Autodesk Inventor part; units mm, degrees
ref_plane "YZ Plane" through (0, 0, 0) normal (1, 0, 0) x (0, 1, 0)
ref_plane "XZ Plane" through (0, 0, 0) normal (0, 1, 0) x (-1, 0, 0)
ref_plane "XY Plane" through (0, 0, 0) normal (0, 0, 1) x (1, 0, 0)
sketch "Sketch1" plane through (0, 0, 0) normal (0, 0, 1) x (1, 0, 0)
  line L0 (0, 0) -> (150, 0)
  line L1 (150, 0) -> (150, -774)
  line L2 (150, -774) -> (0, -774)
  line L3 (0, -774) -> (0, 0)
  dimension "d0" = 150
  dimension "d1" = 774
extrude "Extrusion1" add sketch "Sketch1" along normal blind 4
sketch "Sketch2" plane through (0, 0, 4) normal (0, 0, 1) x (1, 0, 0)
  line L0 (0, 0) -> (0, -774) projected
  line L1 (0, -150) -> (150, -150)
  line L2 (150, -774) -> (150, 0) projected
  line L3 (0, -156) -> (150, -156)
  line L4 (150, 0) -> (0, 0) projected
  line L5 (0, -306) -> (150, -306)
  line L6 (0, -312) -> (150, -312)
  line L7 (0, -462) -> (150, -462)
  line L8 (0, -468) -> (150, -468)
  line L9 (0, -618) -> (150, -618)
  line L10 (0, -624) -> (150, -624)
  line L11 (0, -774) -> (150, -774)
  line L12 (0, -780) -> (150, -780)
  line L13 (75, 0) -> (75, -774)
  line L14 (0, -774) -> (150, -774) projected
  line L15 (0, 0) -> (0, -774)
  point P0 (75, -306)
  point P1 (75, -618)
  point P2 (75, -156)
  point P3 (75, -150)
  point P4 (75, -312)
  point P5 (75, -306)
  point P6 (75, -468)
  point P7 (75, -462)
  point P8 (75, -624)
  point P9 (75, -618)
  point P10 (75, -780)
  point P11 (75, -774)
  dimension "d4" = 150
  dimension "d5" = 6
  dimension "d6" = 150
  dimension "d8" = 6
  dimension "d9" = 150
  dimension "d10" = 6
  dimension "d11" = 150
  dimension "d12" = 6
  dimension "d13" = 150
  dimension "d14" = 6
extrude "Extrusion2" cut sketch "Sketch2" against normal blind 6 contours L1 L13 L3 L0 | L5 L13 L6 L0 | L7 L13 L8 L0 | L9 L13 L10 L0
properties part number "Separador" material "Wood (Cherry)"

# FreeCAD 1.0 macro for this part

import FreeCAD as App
import Part
import Sketcher
from FreeCAD import Vector


def add_polygon(sketch, points):
    """Adds a closed chain of lines whose ends are joined by coincident constraints."""
    first, n = sketch.GeometryCount, len(points)
    for a, b in zip(points, points[1:] + points[:1]):
        sketch.addGeometry(Part.LineSegment(App.Vector(*a, 0), App.Vector(*b, 0)), False)
    for i in range(n):
        sketch.addConstraint(Sketcher.Constraint("Coincident", first + i, 2, first + (i + 1) % n, 1))

doc = App.newDocument("Part")
params = doc.addObject("Spreadsheet::Sheet", "Params")
for row, (alias, value) in enumerate([
    ("sketch1_width", "150 mm"),
    ("sketch1_height", "774 mm"),
    ("pad1_length", "4 mm"),
    ("sketch2_height", "6 mm"),
    ("sketch2_width", "75 mm"),
    ("pocket1_length", "6 mm"),
], start=1):
    params.set(f"A{row}", alias)
    params.set(f"B{row}", "=" + value)
    params.setAlias(f"B{row}", alias)

body = doc.addObject("PartDesign::Body", "Body")

# Sketch on XY plane
sketch1 = body.newObject("Sketcher::SketchObject", "Sketch")
sketch1.AttachmentSupport = (doc.getObject("XY_Plane"), [""])
sketch1.MapMode = "FlatFace"
add_polygon(sketch1, [(150, 0), (0, 0), (0, -774), (150, -774)])  # lines 0-3
sketch1.addConstraint([
    Sketcher.Constraint("Horizontal", 0),
    Sketcher.Constraint("Vertical", 1),
    Sketcher.Constraint("Horizontal", 2),
    Sketcher.Constraint("Vertical", 3),
    Sketcher.Constraint("Coincident", 0, 2, -1, 1),
    Sketcher.Constraint("DistanceX", 0, 2, 0, 1, 150.0),
    Sketcher.Constraint("DistanceY", 1, 2, 1, 1, 774.0),
])
sketch1.setExpression("Constraints[9]", "Params.sketch1_width")
sketch1.setExpression("Constraints[10]", "Params.sketch1_height")
pad1 = body.newObject("PartDesign::Pad", "Pad")
pad1.Profile = sketch1
pad1.setExpression("Length", "Params.pad1_length")

# Sketch on XY plane
sketch2 = body.newObject("Sketcher::SketchObject", "Sketch001")
sketch2.AttachmentSupport = (doc.getObject("XY_Plane"), [""])
sketch2.MapMode = "FlatFace"
sketch2.AttachmentOffset = App.Placement(Vector(0, 0, 4), App.Rotation())
add_polygon(sketch2, [(75, -150), (0, -150), (0, -156), (75, -156)])  # lines 0-3
add_polygon(sketch2, [(75, -306), (0, -306), (0, -312), (75, -312)])  # lines 4-7
add_polygon(sketch2, [(75, -462), (0, -462), (0, -468), (75, -468)])  # lines 8-11
add_polygon(sketch2, [(75, -618), (0, -618), (0, -624), (75, -624)])  # lines 12-15
sketch2.addConstraint([
    Sketcher.Constraint("Horizontal", 0),
    Sketcher.Constraint("Vertical", 1),
    Sketcher.Constraint("Horizontal", 2),
    Sketcher.Constraint("Vertical", 3),
    Sketcher.Constraint("Horizontal", 4),
    Sketcher.Constraint("Vertical", 5),
    Sketcher.Constraint("Horizontal", 6),
    Sketcher.Constraint("Vertical", 7),
    Sketcher.Constraint("Horizontal", 8),
    Sketcher.Constraint("Vertical", 9),
    Sketcher.Constraint("Horizontal", 10),
    Sketcher.Constraint("Vertical", 11),
    Sketcher.Constraint("Horizontal", 12),
    Sketcher.Constraint("Vertical", 13),
    Sketcher.Constraint("Horizontal", 14),
    Sketcher.Constraint("Vertical", 15),
    Sketcher.Constraint("PointOnObject", 0, 2, -2),
    Sketcher.Constraint("PointOnObject", 4, 2, -2),
    Sketcher.Constraint("PointOnObject", 8, 2, -2),
    Sketcher.Constraint("PointOnObject", 12, 2, -2),
    Sketcher.Constraint("Vertical", 3, 2, 6, 2),
    Sketcher.Constraint("Vertical", 7, 2, 10, 2),
    Sketcher.Constraint("Vertical", 11, 2, 14, 2),
    Sketcher.Constraint("Equal", 3, 5),
    Sketcher.Constraint("Equal", 7, 9),
    Sketcher.Constraint("Equal", 11, 13),
    Sketcher.Constraint("DistanceY", 1, 2, 1, 1, 6.0),
    Sketcher.Constraint("DistanceY", 0, 2, -1, 1, 150.0),
    Sketcher.Constraint("DistanceY", 4, 2, 1, 2, 150.0),
    Sketcher.Constraint("DistanceY", 8, 2, 5, 2, 150.0),
    Sketcher.Constraint("DistanceY", 12, 2, 9, 2, 150.0),
    Sketcher.Constraint("DistanceX", 0, 2, 0, 1, 75.0),
])
sketch2.setExpression("Constraints[42]", "Params.sketch2_height")
sketch2.setExpression("Constraints[47]", "Params.sketch2_width")
pocket1 = body.newObject("PartDesign::Pocket", "Pocket")
pocket1.Profile = sketch2
pocket1.setExpression("Length", "Params.pocket1_length")

doc.recompute()
